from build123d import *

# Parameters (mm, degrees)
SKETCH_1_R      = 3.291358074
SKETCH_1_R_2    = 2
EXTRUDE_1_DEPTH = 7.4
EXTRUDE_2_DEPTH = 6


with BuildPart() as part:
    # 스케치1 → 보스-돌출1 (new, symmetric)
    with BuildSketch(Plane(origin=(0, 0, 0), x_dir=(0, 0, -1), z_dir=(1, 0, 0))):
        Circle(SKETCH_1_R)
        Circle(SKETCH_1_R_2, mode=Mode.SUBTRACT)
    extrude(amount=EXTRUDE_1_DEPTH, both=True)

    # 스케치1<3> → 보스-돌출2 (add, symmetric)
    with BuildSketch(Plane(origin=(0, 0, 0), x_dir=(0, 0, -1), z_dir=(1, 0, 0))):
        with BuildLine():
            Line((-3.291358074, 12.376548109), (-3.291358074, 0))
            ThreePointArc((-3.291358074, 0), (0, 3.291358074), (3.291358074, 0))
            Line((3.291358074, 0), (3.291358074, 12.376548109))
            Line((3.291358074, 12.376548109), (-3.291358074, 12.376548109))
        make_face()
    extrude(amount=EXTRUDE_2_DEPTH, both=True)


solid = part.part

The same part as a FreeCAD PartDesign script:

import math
import FreeCAD as App
import Part
import Sketcher

V = App.Vector
Q = App.Units.Quantity

doc = App.newDocument("Part")
body = doc.addObject("PartDesign::Body", "Body")

# Sketch on YZ plane
sketch1 = body.newObject("Sketcher::SketchObject", "Sketch")
sketch1.AttachmentSupport = (doc.getObject("YZ_Plane"), [""])
sketch1.MapMode = "FlatFace"
sketch1.addGeometry([
    Part.Circle(V(0, 0, 0), V(0, 0, 1), 3.3),
    Part.Circle(V(0, 0, 0), V(0, 0, 1), 2),
], False)
sketch1.addConstraint([
    Sketcher.Constraint("Coincident", 0, 3, -1, 1),
    Sketcher.Constraint("Coincident", 1, 3, -1, 1),
    Sketcher.Constraint("Diameter", 1, Q("4 mm")),
    Sketcher.Constraint("Diameter", 0, Q("6.582716 mm")),
])
pad1 = body.newObject("PartDesign::Pad", "Pad")
pad1.Profile = sketch1
pad1.Length = 14.8
pad1.Midplane = True

# Sketch on YZ plane
sketch2 = body.newObject("Sketcher::SketchObject", "Sketch001")
sketch2.AttachmentSupport = (doc.getObject("YZ_Plane"), [""])
sketch2.MapMode = "FlatFace"
sketch2.addGeometry([
    Part.LineSegment(V(12.4, 3.3, 0), V(0, 3.3, 0)),
    Part.ArcOfCircle(Part.Circle(V(0, 0, 0), V(0, 0, 1), 3.3), math.radians(-90), math.radians(90)),
    Part.LineSegment(V(0, -3.3, 0), V(12.4, -3.3, 0)),
    Part.LineSegment(V(12.4, -3.3, 0), V(12.4, 3.3, 0)),
], False)
sketch2.addConstraint([
    Sketcher.Constraint("Tangent", 0, 2, 1, 2),
    Sketcher.Constraint("Tangent", 1, 1, 2, 1),
    Sketcher.Constraint("Coincident", 2, 2, 3, 1),
    Sketcher.Constraint("Coincident", 3, 2, 0, 1),
    Sketcher.Constraint("Horizontal", 0),
    Sketcher.Constraint("Horizontal", 2),
    Sketcher.Constraint("Vertical", 3),
    Sketcher.Constraint("Coincident", 1, 3, -1, 1),
    Sketcher.Constraint("Radius", 1, Q("3.291358 mm")),
    Sketcher.Constraint("DistanceX", 0, 2, 0, 1, Q("12.376548 mm")),
])
pad2 = body.newObject("PartDesign::Pad", "Pad001")
pad2.Profile = sketch2
pad2.Length = 12
pad2.Midplane = True

doc.recompute()
